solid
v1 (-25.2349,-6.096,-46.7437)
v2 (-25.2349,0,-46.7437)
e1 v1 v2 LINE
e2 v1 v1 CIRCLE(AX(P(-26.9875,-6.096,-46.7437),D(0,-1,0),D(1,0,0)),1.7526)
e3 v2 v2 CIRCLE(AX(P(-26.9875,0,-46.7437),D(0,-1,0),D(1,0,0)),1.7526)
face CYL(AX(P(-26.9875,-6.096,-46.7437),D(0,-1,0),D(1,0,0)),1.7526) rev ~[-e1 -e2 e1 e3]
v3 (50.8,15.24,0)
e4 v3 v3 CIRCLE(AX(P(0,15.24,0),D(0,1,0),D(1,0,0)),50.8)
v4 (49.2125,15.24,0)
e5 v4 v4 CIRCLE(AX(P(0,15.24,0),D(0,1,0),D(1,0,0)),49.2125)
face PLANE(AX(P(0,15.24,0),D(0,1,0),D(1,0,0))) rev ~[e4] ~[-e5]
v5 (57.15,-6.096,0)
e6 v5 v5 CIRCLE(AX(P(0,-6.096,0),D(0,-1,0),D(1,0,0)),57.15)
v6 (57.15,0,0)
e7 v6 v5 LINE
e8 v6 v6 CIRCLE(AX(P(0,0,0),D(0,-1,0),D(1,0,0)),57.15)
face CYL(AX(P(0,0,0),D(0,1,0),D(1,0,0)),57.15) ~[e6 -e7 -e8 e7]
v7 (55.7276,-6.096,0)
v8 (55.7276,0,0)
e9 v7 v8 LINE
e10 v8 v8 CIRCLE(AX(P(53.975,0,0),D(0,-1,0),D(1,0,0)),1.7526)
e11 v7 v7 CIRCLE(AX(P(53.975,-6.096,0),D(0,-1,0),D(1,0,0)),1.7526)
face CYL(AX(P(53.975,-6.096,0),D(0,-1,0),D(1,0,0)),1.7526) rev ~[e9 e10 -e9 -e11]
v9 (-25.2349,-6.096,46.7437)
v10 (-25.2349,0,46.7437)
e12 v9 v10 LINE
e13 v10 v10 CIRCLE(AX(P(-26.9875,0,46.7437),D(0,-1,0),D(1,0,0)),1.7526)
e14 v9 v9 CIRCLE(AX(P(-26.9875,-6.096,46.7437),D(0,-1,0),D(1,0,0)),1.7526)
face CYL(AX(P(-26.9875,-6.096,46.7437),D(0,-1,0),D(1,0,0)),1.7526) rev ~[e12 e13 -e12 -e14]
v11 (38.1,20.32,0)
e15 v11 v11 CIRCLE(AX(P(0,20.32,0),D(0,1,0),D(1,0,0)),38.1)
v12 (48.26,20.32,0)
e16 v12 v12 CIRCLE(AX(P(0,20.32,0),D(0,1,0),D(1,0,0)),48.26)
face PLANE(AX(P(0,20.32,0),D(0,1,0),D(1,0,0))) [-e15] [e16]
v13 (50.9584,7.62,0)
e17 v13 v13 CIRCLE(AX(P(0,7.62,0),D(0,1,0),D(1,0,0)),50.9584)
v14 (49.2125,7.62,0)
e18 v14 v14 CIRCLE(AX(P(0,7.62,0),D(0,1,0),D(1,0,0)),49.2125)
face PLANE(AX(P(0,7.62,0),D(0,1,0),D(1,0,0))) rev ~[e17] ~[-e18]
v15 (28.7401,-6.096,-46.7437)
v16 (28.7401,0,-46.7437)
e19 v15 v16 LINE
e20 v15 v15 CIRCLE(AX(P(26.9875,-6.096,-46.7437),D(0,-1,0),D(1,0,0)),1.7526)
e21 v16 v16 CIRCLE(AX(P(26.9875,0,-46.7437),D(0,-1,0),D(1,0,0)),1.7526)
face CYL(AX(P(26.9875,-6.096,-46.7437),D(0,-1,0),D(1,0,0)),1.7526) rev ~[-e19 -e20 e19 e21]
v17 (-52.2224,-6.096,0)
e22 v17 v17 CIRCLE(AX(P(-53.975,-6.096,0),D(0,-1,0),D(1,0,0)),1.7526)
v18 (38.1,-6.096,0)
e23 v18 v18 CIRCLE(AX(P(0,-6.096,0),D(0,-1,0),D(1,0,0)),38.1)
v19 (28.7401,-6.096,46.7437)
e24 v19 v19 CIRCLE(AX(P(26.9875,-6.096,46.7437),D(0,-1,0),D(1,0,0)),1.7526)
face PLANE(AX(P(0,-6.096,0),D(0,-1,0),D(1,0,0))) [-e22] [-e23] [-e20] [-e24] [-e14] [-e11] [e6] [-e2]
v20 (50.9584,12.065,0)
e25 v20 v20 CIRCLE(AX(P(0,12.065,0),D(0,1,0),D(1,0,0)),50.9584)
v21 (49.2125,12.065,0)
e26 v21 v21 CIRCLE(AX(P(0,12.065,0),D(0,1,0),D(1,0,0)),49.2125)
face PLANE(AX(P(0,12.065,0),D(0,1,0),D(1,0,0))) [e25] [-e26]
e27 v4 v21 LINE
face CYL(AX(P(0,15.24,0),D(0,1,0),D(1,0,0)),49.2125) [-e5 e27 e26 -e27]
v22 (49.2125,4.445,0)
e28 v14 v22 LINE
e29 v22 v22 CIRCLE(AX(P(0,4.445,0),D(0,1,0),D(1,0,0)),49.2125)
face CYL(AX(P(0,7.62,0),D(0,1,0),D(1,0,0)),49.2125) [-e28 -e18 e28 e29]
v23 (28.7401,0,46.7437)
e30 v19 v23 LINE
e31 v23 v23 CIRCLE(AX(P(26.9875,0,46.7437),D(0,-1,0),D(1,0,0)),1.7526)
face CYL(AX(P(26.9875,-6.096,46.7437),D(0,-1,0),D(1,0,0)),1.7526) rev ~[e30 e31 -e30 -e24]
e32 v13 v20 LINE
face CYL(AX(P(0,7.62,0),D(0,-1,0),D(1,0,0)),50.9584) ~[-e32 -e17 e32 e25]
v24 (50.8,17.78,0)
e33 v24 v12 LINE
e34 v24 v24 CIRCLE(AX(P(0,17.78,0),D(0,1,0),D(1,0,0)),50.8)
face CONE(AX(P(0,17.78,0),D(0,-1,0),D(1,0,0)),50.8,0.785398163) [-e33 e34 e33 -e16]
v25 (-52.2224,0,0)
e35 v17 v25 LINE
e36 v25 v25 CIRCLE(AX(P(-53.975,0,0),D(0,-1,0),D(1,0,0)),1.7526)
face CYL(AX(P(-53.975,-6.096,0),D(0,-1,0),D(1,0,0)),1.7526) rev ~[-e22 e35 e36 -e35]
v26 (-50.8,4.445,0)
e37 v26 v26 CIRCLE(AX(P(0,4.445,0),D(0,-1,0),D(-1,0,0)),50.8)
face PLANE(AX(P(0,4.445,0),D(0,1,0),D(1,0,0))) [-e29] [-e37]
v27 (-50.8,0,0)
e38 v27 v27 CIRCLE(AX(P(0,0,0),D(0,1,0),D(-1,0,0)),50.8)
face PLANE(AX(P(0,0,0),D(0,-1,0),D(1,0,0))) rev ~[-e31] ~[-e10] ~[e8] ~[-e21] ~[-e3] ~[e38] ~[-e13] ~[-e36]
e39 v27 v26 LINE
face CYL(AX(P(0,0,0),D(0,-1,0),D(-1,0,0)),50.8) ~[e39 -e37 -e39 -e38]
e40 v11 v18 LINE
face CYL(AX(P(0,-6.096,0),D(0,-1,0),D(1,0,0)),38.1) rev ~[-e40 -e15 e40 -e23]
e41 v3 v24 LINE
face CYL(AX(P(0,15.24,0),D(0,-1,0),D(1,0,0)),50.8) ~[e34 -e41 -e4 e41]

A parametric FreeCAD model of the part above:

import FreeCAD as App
import Part
import Sketcher
from FreeCAD import Vector
Q = App.Units.Quantity


def edges_at(feature, points):
    """Names of the edges that pass closest to the given points."""
    edges = feature.Shape.Edges
    near = lambda p: min(range(len(edges)), key=lambda i: edges[i].distToShape(Part.Vertex(*p))[0])
    return sorted({f"Edge{near(p) + 1}" for p in points})

doc = App.newDocument("Part")
params = doc.addObject("Spreadsheet::Sheet", "Params")
for row, (alias, value) in enumerate([
    ("sketch1_diameter", "4 in"),
    ("pad1_length", "0.3 in"),
    ("sketch2_diameter", "4 in"),
    ("sketch2_diameter2", "3.875 in"),
    ("pocket1_length", "0.125 in"),
    ("pad2_length", "0.3 in"),
    ("sketch4_diameter", "3.875 in"),
    ("pocket2_length", "0.125 in"),
    ("sketch5_diameter", "4 in"),
    ("pad3_length", "0.2 in"),
    ("sketch6_diameter", "4.5 in"),
    ("pad4_length", "0.24 in"),
    ("chamfer_size", "0.1 in"),
    ("sketch7_diameter", "0.138 in"),
    ("pocket3_length", "0.24 in"),
    ("sketch8_diameter", "0.1 in"),
    ("pocket4_length", "5 in"),
    ("sketch9_diameter", "3 in"),
    ("sketch9_diameter2", "0.1 in"),
    ("pocket5_length", "0.375 in"),
    ("sketch10_diameter", "1 in"),
    ("sketch10_diameter2", "0.1 in"),
    ("pad5_length", "0.375 in"),
    ("sketch11_diameter", "3 in"),
    ("sketch11_diameter2", "0.1 in"),
    ("pocket6_length", "20 in"),
], start=1):
    params.set(f"A{row}", alias)
    params.set(f"B{row}", "=" + value)
    params.setAlias(f"B{row}", alias)

body = doc.addObject("PartDesign::Body", "Body")

# Sketch on XZ plane
sketch1 = doc.addObject("Sketcher::SketchObject", "Sketch")
body.addObject(sketch1)
sketch1.AttachmentSupport = (doc.XZ_Plane, [""])
sketch1.MapMode = "FlatFace"
sketch1.addGeometry(Part.Circle(Vector(0, 0, 0), Vector(0, 0, 1), 50.8), False)
sketch1.addConstraint([
    Sketcher.Constraint("Coincident", 0, 3, -1, 1),
    Sketcher.Constraint("Diameter", 0, Q("4 in")),
])
sketch1.setExpression("Constraints[1]", "Params.sketch1_diameter")
pad1 = doc.addObject("PartDesign::Pad", "Pad")
body.addObject(pad1)
pad1.Profile = sketch1
pad1.setExpression("Length", "Params.pad1_length")
pad1.Reversed = True

# Sketch on XZ plane
sketch2 = doc.addObject("Sketcher::SketchObject", "Sketch001")
body.addObject(sketch2)
sketch2.AttachmentSupport = (doc.XZ_Plane, [""])
sketch2.MapMode = "FlatFace"
sketch2.AttachmentOffset = App.Placement(Vector(0, 0, -0.3 * 25.4), App.Rotation())
sketch2.addGeometry([
    Part.Circle(Vector(0, 0, 0), Vector(0, 0, 1), 50.8),
    Part.Circle(Vector(0, 0, 0), Vector(0, 0, 1), 49.2125),
], False)
sketch2.addConstraint([
    Sketcher.Constraint("Coincident", 0, 3, -1, 1),
    Sketcher.Constraint("Coincident", 1, 3, -1, 1),
    Sketcher.Constraint("Diameter", 0, Q("4 in")),
    Sketcher.Constraint("Diameter", 1, Q("3.875 in")),
])
sketch2.setExpression("Constraints[2]", "Params.sketch2_diameter")
sketch2.setExpression("Constraints[3]", "Params.sketch2_diameter2")
pocket1 = doc.addObject("PartDesign::Pocket", "Pocket")
body.addObject(pocket1)
pocket1.Profile = sketch2
pocket1.setExpression("Length", "Params.pocket1_length")
pocket1.Reversed = True

# Sketch on XZ plane
sketch3 = doc.addObject("Sketcher::SketchObject", "Sketch002")
body.addObject(sketch3)
sketch3.AttachmentSupport = (doc.XZ_Plane, [""])
sketch3.MapMode = "FlatFace"
sketch3.AttachmentOffset = App.Placement(Vector(0, 0, -0.3 * 25.4), App.Rotation())
sketch3.addGeometry(Part.Circle(Vector(0, 0, 0), Vector(0, 0, 1), 50.9584), False)
sketch3.addConstraint([
    Sketcher.Constraint("Coincident", 0, 3, -1, 1),
    Sketcher.Constraint("Diameter", 0, Q("101.9168 mm")),
])
pad2 = doc.addObject("PartDesign::Pad", "Pad001")
body.addObject(pad2)
pad2.Profile = sketch3
pad2.setExpression("Length", "Params.pad2_length")
pad2.Reversed = True

# Sketch on XZ plane
sketch4 = doc.addObject("Sketcher::SketchObject", "Sketch003")
body.addObject(sketch4)
sketch4.AttachmentSupport = (doc.XZ_Plane, [""])
sketch4.MapMode = "FlatFace"
sketch4.AttachmentOffset = App.Placement(Vector(0, 0, -0.6 * 25.4), App.Rotation())
sketch4.addGeometry([
    Part.Circle(Vector(0, 0, 0), Vector(0, 0, 1), 50.9584),
    Part.Circle(Vector(0, 0, 0), Vector(0, 0, 1), 49.2125),
], False)
sketch4.addConstraint([
    Sketcher.Constraint("Coincident", 0, 3, -1, 1),
    Sketcher.Constraint("Coincident", 1, 3, -1, 1),
    Sketcher.Constraint("Diameter", 1, Q("3.875 in")),
    Sketcher.Constraint("Diameter", 0, Q("101.9168 mm")),
])
sketch4.setExpression("Constraints[2]", "Params.sketch4_diameter")
pocket2 = doc.addObject("PartDesign::Pocket", "Pocket001")
body.addObject(pocket2)
pocket2.Profile = sketch4
pocket2.setExpression("Length", "Params.pocket2_length")
pocket2.Reversed = True

# Sketch on XZ plane
sketch5 = doc.addObject("Sketcher::SketchObject", "Sketch004")
body.addObject(sketch5)
sketch5.AttachmentSupport = (doc.XZ_Plane, [""])
sketch5.MapMode = "FlatFace"
sketch5.AttachmentOffset = App.Placement(Vector(0, 0, -0.6 * 25.4), App.Rotation())
sketch5.addGeometry(Part.Circle(Vector(0, 0, 0), Vector(0, 0, 1), 50.8), False)
sketch5.addConstraint([
    Sketcher.Constraint("Coincident", 0, 3, -1, 1),
    Sketcher.Constraint("Diameter", 0, Q("4 in")),
])
sketch5.setExpression("Constraints[1]", "Params.sketch5_diameter")
pad3 = doc.addObject("PartDesign::Pad", "Pad002")
body.addObject(pad3)
pad3.Profile = sketch5
pad3.setExpression("Length", "Params.pad3_length")
pad3.Reversed = True

# Sketch on XZ plane
sketch6 = doc.addObject("Sketcher::SketchObject", "Sketch005")
body.addObject(sketch6)
sketch6.AttachmentSupport = (doc.XZ_Plane, [""])
sketch6.MapMode = "FlatFace"
sketch6.addGeometry(Part.Circle(Vector(0, 0, 0), Vector(0, 0, 1), 57.15), False)
sketch6.addConstraint([
    Sketcher.Constraint("Coincident", 0, 3, -1, 1),
    Sketcher.Constraint("Diameter", 0, Q("4.5 in")),
])
sketch6.setExpression("Constraints[1]", "Params.sketch6_diameter")
pad4 = doc.addObject("PartDesign::Pad", "Pad003")
body.addObject(pad4)
pad4.Profile = sketch6
pad4.setExpression("Length", "Params.pad4_length")
doc.recompute()

chamfer = doc.addObject("PartDesign::Chamfer", "Chamfer")
body.addObject(chamfer)
chamfer.Base = (pad4, edges_at(pad4, [(-50.8, 20.32, 0)]))
chamfer.setExpression("Size", "Params.chamfer_size")

# Sketch on XZ plane
sketch7 = doc.addObject("Sketcher::SketchObject", "Sketch006")
body.addObject(sketch7)
sketch7.AttachmentSupport = (doc.XZ_Plane, [""])
sketch7.MapMode = "FlatFace"
sketch7.AttachmentOffset = App.Placement(Vector(0, 0, 0.24 * 25.4), App.Rotation())
sketch7.addGeometry([
    Part.Circle(Vector(53.975, 0, 0), Vector(0, 0, 1), 1.7526),  # 0
    Part.Circle(Vector(26.9875, 46.7437, 0), Vector(0, 0, 1), 1.7526),  # 1
    Part.Circle(Vector(-26.9875, 46.7437, 0), Vector(0, 0, 1), 1.7526),  # 2
    Part.Circle(Vector(-53.975, 0, 0), Vector(0, 0, 1), 1.7526),  # 3
    Part.Circle(Vector(-26.9875, -46.7437, 0), Vector(0, 0, 1), 1.7526),  # 4
    Part.Circle(Vector(26.9875, -46.7437, 0), Vector(0, 0, 1), 1.7526),  # 5
], False)
sketch7.addConstraint([
    Sketcher.Constraint("Equal", 0, 1),
    Sketcher.Constraint("Equal", 1, 2),
    Sketcher.Constraint("Equal", 2, 3),
    Sketcher.Constraint("Equal", 3, 4),
    Sketcher.Constraint("Equal", 4, 5),
    Sketcher.Constraint("Symmetric", 0, 3, 3, 3, -1, 1),
    Sketcher.Constraint("Symmetric", 1, 3, 4, 3, -1, 1),
    Sketcher.Constraint("Symmetric", 2, 3, 5, 3, -1, 1),
    Sketcher.Constraint("Symmetric", 1, 3, 2, 3, -2),
    Sketcher.Constraint("PointOnObject", 0, 3, -1),
    Sketcher.Constraint("Diameter", 0, Q("0.138 in")),
    Sketcher.Constraint("DistanceX", -1, 1, 0, 3, Q("2.125 in")),
    Sketcher.Constraint("DistanceX", 2, 3, 1, 3, Q("2.125 in")),
    Sketcher.Constraint("DistanceY", -1, 1, 1, 3, Q("1.8403 in")),
])
sketch7.setExpression("Constraints[10]", "Params.sketch7_diameter")
pocket3 = doc.addObject("PartDesign::Pocket", "Pocket002")
body.addObject(pocket3)
pocket3.Profile = sketch7
pocket3.setExpression("Length", "Params.pocket3_length")

# Sketch on XZ plane
sketch8 = doc.addObject("Sketcher::SketchObject", "Sketch007")
body.addObject(sketch8)
sketch8.AttachmentSupport = (doc.XZ_Plane, [""])
sketch8.MapMode = "FlatFace"
sketch8.AttachmentOffset = App.Placement(Vector(0, 0, 0.24 * 25.4), App.Rotation())
sketch8.addGeometry(Part.Circle(Vector(0, 0, 0), Vector(0, 0, 1), 1.27), False)
sketch8.addConstraint([
    Sketcher.Constraint("Coincident", 0, 3, -1, 1),
    Sketcher.Constraint("Diameter", 0, Q("0.1 in")),
])
sketch8.setExpression("Constraints[1]", "Params.sketch8_diameter")
pocket4 = doc.addObject("PartDesign::Pocket", "Pocket003")
body.addObject(pocket4)
pocket4.Profile = sketch8
pocket4.setExpression("Length", "Params.pocket4_length")

# Sketch on XZ plane
sketch9 = doc.addObject("Sketcher::SketchObject", "Sketch008")
body.addObject(sketch9)
sketch9.AttachmentSupport = (doc.XZ_Plane, [""])
sketch9.MapMode = "FlatFace"
sketch9.AttachmentOffset = App.Placement(Vector(0, 0, 0.24 * 25.4), App.Rotation())
sketch9.addGeometry([
    Part.Circle(Vector(0, 0, 0), Vector(0, 0, 1), 38.1),
    Part.Circle(Vector(0, 0, 0), Vector(0, 0, 1), 1.27),
], False)
sketch9.addConstraint([
    Sketcher.Constraint("Coincident", 0, 3, -1, 1),
    Sketcher.Constraint("Coincident", 1, 3, -1, 1),
    Sketcher.Constraint("Diameter", 0, Q("3 in")),
    Sketcher.Constraint("Diameter", 1, Q("0.1 in")),
])
sketch9.setExpression("Constraints[2]", "Params.sketch9_diameter")
sketch9.setExpression("Constraints[3]", "Params.sketch9_diameter2")
pocket5 = doc.addObject("PartDesign::Pocket", "Pocket004")
body.addObject(pocket5)
pocket5.Profile = sketch9
pocket5.setExpression("Length", "Params.pocket5_length")

# Sketch on XZ plane
sketch10 = doc.addObject("Sketcher::SketchObject", "Sketch009")
body.addObject(sketch10)
sketch10.AttachmentSupport = (doc.XZ_Plane, [""])
sketch10.MapMode = "FlatFace"
sketch10.AttachmentOffset = App.Placement(Vector(0, 0, -0.135 * 25.4), App.Rotation())
sketch10.addGeometry([
    Part.Circle(Vector(0, 0, 0), Vector(0, 0, 1), 12.7),
    Part.Circle(Vector(0, 0, 0), Vector(0, 0, 1), 1.27),
], False)
sketch10.addConstraint([
    Sketcher.Constraint("Coincident", 0, 3, -1, 1),
    Sketcher.Constraint("Coincident", 1, 3, -1, 1),
    Sketcher.Constraint("Diameter", 0, Q("1 in")),
    Sketcher.Constraint("Diameter", 1, Q("0.1 in")),
])
sketch10.setExpression("Constraints[2]", "Params.sketch10_diameter")
sketch10.setExpression("Constraints[3]", "Params.sketch10_diameter2")
pad5 = doc.addObject("PartDesign::Pad", "Pad004")
body.addObject(pad5)
pad5.Profile = sketch10
pad5.setExpression("Length", "Params.pad5_length")

# Sketch on XZ plane
sketch11 = doc.addObject("Sketcher::SketchObject", "Sketch010")
body.addObject(sketch11)
sketch11.AttachmentSupport = (doc.XZ_Plane, [""])
sketch11.MapMode = "FlatFace"
sketch11.AttachmentOffset = App.Placement(Vector(0, 0, -0.8 * 25.4), App.Rotation())
sketch11.addGeometry([
    Part.Circle(Vector(0, 0, 0), Vector(0, 0, 1), 38.1),
    Part.Circle(Vector(0, 0, 0), Vector(0, 0, 1), 1.27),
], False)
sketch11.addConstraint([
    Sketcher.Constraint("Coincident", 0, 3, -1, 1),
    Sketcher.Constraint("Coincident", 1, 3, -1, 1),
    Sketcher.Constraint("Diameter", 0, Q("3 in")),
    Sketcher.Constraint("Diameter", 1, Q("0.1 in")),
])
sketch11.setExpression("Constraints[2]", "Params.sketch11_diameter")
sketch11.setExpression("Constraints[3]", "Params.sketch11_diameter2")
pocket6 = doc.addObject("PartDesign::Pocket", "Pocket005")
body.addObject(pocket6)
pocket6.Profile = sketch11
pocket6.setExpression("Length", "Params.pocket6_length")
pocket6.Reversed = True

doc.recompute()
